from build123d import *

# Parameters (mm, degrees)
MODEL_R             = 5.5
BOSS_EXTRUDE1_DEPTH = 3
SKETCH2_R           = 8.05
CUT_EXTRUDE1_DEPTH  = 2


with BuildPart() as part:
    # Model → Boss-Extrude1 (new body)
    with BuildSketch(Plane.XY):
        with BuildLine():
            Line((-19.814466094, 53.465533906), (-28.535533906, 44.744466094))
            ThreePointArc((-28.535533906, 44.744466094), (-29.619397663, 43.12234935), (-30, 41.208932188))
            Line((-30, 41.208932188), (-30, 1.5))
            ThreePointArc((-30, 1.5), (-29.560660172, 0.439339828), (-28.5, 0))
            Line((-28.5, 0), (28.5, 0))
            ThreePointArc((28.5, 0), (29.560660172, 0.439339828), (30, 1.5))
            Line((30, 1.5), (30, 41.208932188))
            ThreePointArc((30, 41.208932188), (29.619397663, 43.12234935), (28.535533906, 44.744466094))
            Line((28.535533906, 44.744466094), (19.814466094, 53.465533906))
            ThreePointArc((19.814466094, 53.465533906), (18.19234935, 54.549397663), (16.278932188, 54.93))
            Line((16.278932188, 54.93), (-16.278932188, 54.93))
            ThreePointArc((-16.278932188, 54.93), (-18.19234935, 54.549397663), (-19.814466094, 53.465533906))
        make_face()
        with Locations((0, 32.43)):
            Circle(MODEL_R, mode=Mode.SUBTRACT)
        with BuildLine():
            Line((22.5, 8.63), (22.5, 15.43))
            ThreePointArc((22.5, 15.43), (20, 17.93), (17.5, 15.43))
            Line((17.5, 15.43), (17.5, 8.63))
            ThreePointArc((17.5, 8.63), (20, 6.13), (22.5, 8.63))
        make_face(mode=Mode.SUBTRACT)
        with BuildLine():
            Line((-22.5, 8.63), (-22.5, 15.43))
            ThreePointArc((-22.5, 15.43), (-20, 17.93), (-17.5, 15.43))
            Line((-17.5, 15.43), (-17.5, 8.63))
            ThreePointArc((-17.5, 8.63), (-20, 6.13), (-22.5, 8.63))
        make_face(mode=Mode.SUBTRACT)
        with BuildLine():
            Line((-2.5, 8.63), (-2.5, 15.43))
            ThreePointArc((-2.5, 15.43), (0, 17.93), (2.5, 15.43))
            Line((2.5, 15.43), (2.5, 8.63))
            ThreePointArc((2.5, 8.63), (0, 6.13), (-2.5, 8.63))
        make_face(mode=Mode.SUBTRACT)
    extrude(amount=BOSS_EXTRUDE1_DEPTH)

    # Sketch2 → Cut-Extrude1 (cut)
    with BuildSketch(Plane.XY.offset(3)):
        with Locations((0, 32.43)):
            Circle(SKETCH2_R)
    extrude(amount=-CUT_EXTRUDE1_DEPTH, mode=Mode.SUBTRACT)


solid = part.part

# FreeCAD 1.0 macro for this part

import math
import FreeCAD as App
import Part
import Sketcher
from FreeCAD import Vector

doc = App.newDocument("Part")
body = doc.addObject("PartDesign::Body", "Body")

# Sketch on XY plane
sketch1 = body.newObject("Sketcher::SketchObject", "Sketch")
sketch1.AttachmentSupport = (doc.getObject("XY_Plane"), [""])
sketch1.MapMode = "FlatFace"
sketch1.addGeometry([
    Part.LineSegment(Vector(-19.8, 53.5, 0), Vector(-28.5, 44.7, 0)),  # 0
    Part.ArcOfCircle(Part.Circle(Vector(-25, 41.2, 0), Vector(0, 0, 1), 5), math.radians(135), math.radians(180)),  # 1
    Part.LineSegment(Vector(-30, 41.2, 0), Vector(-30, 1.5, 0)),  # 2
    Part.ArcOfCircle(Part.Circle(Vector(-28.5, 1.5, 0), Vector(0, 0, 1), 1.5), math.radians(180), math.radians(270)),  # 3
    Part.LineSegment(Vector(-28.5, 0, 0), Vector(28.5, 0, 0)),  # 4
    Part.ArcOfCircle(Part.Circle(Vector(28.5, 1.5, 0), Vector(0, 0, 1), 1.5), math.radians(-90), math.radians(0)),  # 5
    Part.LineSegment(Vector(30, 1.5, 0), Vector(30, 41.2, 0)),  # 6
    Part.ArcOfCircle(Part.Circle(Vector(25, 41.2, 0), Vector(0, 0, 1), 5), math.radians(0), math.radians(45)),  # 7
    Part.LineSegment(Vector(28.5, 44.7, 0), Vector(19.8, 53.5, 0)),  # 8
    Part.ArcOfCircle(Part.Circle(Vector(16.3, 49.9, 0), Vector(0, 0, 1), 5), math.radians(45), math.radians(90)),  # 9
    Part.LineSegment(Vector(16.3, 54.9, 0), Vector(-16.3, 54.9, 0)),  # 10
    Part.ArcOfCircle(Part.Circle(Vector(-16.3, 49.9, 0), Vector(0, 0, 1), 5), math.radians(90), math.radians(135)),  # 11
    Part.ArcOfCircle(Part.Circle(Vector(-20, 8.6, 0), Vector(0, 0, 1), 2.5), math.radians(180), math.radians(360)),  # 12
    Part.LineSegment(Vector(-22.5, 8.6, 0), Vector(-22.5, 15.4, 0)),  # 13
    Part.ArcOfCircle(Part.Circle(Vector(-20, 15.4, 0), Vector(0, 0, 1), 2.5), math.radians(0), math.radians(180)),  # 14
    Part.LineSegment(Vector(-17.5, 15.4, 0), Vector(-17.5, 8.6, 0)),  # 15
    Part.ArcOfCircle(Part.Circle(Vector(0, 8.6, 0), Vector(0, 0, 1), 2.5), math.radians(180), math.radians(360)),  # 16
    Part.LineSegment(Vector(-2.5, 8.6, 0), Vector(-2.5, 15.4, 0)),  # 17
    Part.ArcOfCircle(Part.Circle(Vector(0, 15.4, 0), Vector(0, 0, 1), 2.5), math.radians(0), math.radians(180)),  # 18
    Part.LineSegment(Vector(2.5, 15.4, 0), Vector(2.5, 8.6, 0)),  # 19
    Part.LineSegment(Vector(22.5, 15.4, 0), Vector(22.5, 8.6, 0)),  # 20
    Part.ArcOfCircle(Part.Circle(Vector(20, 8.6, 0), Vector(0, 0, 1), 2.5), math.radians(180), math.radians(360)),  # 21
    Part.LineSegment(Vector(17.5, 8.6, 0), Vector(17.5, 15.4, 0)),  # 22
    Part.ArcOfCircle(Part.Circle(Vector(20, 15.4, 0), Vector(0, 0, 1), 2.5), math.radians(0), math.radians(180)),  # 23
    Part.Circle(Vector(0, 32.4, 0), Vector(0, 0, 1), 5.5),  # 24
], False)
sketch1.addConstraint([
    Sketcher.Constraint("Tangent", 0, 2, 1, 1),
    Sketcher.Constraint("Tangent", 1, 2, 2, 1),
    Sketcher.Constraint("Tangent", 2, 2, 3, 1),
    Sketcher.Constraint("Tangent", 3, 2, 4, 1),
    Sketcher.Constraint("Tangent", 4, 2, 5, 1),
    Sketcher.Constraint("Tangent", 5, 2, 6, 1),
    Sketcher.Constraint("Tangent", 6, 2, 7, 1),
    Sketcher.Constraint("Tangent", 7, 2, 8, 1),
    Sketcher.Constraint("Tangent", 8, 2, 9, 1),
    Sketcher.Constraint("Tangent", 9, 2, 10, 1),
    Sketcher.Constraint("Tangent", 10, 2, 11, 1),
    Sketcher.Constraint("Tangent", 11, 2, 0, 1),
    Sketcher.Constraint("Tangent", 12, 1, 13, 1),
    Sketcher.Constraint("Tangent", 13, 2, 14, 2),
    Sketcher.Constraint("Tangent", 14, 1, 15, 1),
    Sketcher.Constraint("Tangent", 15, 2, 12, 2),
    Sketcher.Constraint("Tangent", 16, 1, 17, 1),
    Sketcher.Constraint("Tangent", 17, 2, 18, 2),
    Sketcher.Constraint("Tangent", 18, 1, 19, 1),
    Sketcher.Constraint("Tangent", 19, 2, 16, 2),
    Sketcher.Constraint("Tangent", 20, 2, 21, 2),
    Sketcher.Constraint("Tangent", 21, 1, 22, 1),
    Sketcher.Constraint("Tangent", 22, 2, 23, 2),
    Sketcher.Constraint("Tangent", 23, 1, 20, 1),
    Sketcher.Constraint("Vertical", 2),
    Sketcher.Constraint("Horizontal", 4),
    Sketcher.Constraint("Vertical", 6),
    Sketcher.Constraint("Horizontal", 10),
    Sketcher.Constraint("Vertical", 13),
    Sketcher.Constraint("Vertical", 15),
    Sketcher.Constraint("Vertical", 17),
    Sketcher.Constraint("Vertical", 19),
    Sketcher.Constraint("Vertical", 20),
    Sketcher.Constraint("Vertical", 22),
    Sketcher.Constraint("Equal", 3, 5),
    Sketcher.Constraint("Equal", 1, 7),
    Sketcher.Constraint("Equal", 7, 9),
    Sketcher.Constraint("Equal", 9, 11),
    Sketcher.Constraint("Equal", 14, 16),
    Sketcher.Constraint("Equal", 18, 21),
    Sketcher.Constraint("Symmetric", 3, 2, 4, 2, -1, 1),
    Sketcher.Constraint("Symmetric", 12, 3, 21, 3, -2),
    Sketcher.Constraint("Symmetric", 0, 2, 7, 2, -2),
    Sketcher.Constraint("PointOnObject", 16, 3, -2),
    Sketcher.Constraint("PointOnObject", 24, 3, -2),
    Sketcher.Constraint("Perpendicular", 0, 8),
    Sketcher.Constraint("Horizontal", 12, 3, 16, 3),
    Sketcher.Constraint("Horizontal", 14, 3, 18, 3),
    Sketcher.Constraint("Horizontal", 18, 3, 23, 3),
    Sketcher.Constraint("Diameter", 24, 11.0),
    Sketcher.Constraint("Radius", 1, 5.0),
    Sketcher.Constraint("Radius", 3, 1.5),
    Sketcher.Constraint("Radius", 12, 2.5),
    Sketcher.Constraint("DistanceX", 4, 1, 4, 2, 57.0),
    Sketcher.Constraint("DistanceY", 13, 1, 13, 2, 6.8),
    Sketcher.Constraint("DistanceX", 12, 3, -1, 1, 20.0),
    Sketcher.Constraint("DistanceY", 18, 3, 24, 3, 17.0),
    Sketcher.Constraint("DistanceY", 12, 3, 11, 3, 41.3),
    Sketcher.Constraint("DistanceY", -1, 1, 9, 3, 49.93),
    Sketcher.Constraint("DistanceX", 0, 2, 11, 3, 12.256602),
])
pad1 = body.newObject("PartDesign::Pad", "Pad")
pad1.Profile = sketch1
pad1.Length = 3

# Sketch on XY plane
sketch2 = body.newObject("Sketcher::SketchObject", "Sketch001")
sketch2.AttachmentSupport = (doc.getObject("XY_Plane"), [""])
sketch2.MapMode = "FlatFace"
sketch2.AttachmentOffset = App.Placement(Vector(0, 0, 3), App.Rotation())
sketch2.addGeometry(Part.Circle(Vector(0, 32, 0), Vector(0, 0, 1), 8), False)
sketch2.addConstraint([
    Sketcher.Constraint("PointOnObject", 0, 3, -2),
    Sketcher.Constraint("Diameter", 0, 16.1),
    Sketcher.Constraint("DistanceY", -1, 1, 0, 3, 32.43),
])
pocket1 = body.newObject("PartDesign::Pocket", "Pocket")
pocket1.Profile = sketch2
pocket1.Length = 2

doc.recompute()
